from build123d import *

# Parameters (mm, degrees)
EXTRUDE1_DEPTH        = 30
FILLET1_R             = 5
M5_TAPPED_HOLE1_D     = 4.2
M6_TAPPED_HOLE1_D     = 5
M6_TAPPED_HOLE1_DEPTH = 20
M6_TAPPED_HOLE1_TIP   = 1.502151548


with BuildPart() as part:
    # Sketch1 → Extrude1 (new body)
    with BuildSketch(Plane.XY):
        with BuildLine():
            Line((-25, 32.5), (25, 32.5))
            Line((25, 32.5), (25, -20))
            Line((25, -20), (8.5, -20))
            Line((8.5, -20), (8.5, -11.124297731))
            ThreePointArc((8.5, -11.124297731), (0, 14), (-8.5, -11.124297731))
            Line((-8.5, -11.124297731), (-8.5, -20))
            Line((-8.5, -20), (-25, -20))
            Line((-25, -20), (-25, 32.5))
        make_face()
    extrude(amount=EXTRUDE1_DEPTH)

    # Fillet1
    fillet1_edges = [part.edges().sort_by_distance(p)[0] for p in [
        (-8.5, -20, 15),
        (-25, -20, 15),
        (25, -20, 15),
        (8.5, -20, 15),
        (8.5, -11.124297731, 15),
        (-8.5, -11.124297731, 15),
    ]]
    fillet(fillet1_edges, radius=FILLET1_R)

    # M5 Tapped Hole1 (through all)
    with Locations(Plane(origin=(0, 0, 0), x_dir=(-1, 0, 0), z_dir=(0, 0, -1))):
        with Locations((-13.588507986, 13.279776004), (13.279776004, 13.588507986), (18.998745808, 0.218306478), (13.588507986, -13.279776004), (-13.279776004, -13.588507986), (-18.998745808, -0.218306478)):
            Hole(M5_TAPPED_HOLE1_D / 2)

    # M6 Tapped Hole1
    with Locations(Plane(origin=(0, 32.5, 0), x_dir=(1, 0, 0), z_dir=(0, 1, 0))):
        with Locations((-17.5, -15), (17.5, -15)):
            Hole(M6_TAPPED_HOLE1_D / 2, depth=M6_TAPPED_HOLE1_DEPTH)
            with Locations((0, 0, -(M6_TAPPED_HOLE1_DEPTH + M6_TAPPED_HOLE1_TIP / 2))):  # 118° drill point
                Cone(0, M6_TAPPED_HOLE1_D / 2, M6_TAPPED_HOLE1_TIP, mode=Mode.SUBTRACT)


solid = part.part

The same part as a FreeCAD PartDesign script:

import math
import FreeCAD as App
import Part
import Sketcher
from FreeCAD import Vector
Q = App.Units.Quantity


def edges_at(feature, points):
    """Names of the edges that pass closest to the given points."""
    edges = feature.Shape.Edges
    near = lambda p: min(range(len(edges)), key=lambda i: edges[i].distToShape(Part.Vertex(*p))[0])
    return sorted({f"Edge{near(p) + 1}" for p in points})

doc = App.newDocument("Part")
body = doc.addObject("PartDesign::Body", "Body")

# Sketch on XY plane
sketch1 = body.newObject("Sketcher::SketchObject", "Sketch")
sketch1.AttachmentSupport = (doc.getObject("XY_Plane"), [""])
sketch1.MapMode = "FlatFace"
sketch1.addGeometry([
    Part.LineSegment(Vector(25, 32, 0), Vector(-25, 32, 0)),  # 0
    Part.LineSegment(Vector(-25, 32, 0), Vector(-25, -20, 0)),  # 1
    Part.LineSegment(Vector(-25, -20, 0), Vector(-8, -20, 0)),  # 2
    Part.LineSegment(Vector(-8, -20, 0), Vector(-8, -11, 0)),  # 3
    Part.ArcOfCircle(Part.Circle(Vector(0, 0, 0), Vector(0, 0, 1), 14), math.radians(-53), math.radians(233)),  # 4
    Part.LineSegment(Vector(8, -11, 0), Vector(8, -20, 0)),  # 5
    Part.LineSegment(Vector(8, -20, 0), Vector(25, -20, 0)),  # 6
    Part.LineSegment(Vector(25, -20, 0), Vector(25, 32, 0)),  # 7
], False)
sketch1.addConstraint([
    Sketcher.Constraint("Coincident", 0, 2, 1, 1),
    Sketcher.Constraint("Coincident", 1, 2, 2, 1),
    Sketcher.Constraint("Coincident", 2, 2, 3, 1),
    Sketcher.Constraint("Coincident", 3, 2, 4, 2),
    Sketcher.Constraint("Coincident", 4, 1, 5, 1),
    Sketcher.Constraint("Coincident", 5, 2, 6, 1),
    Sketcher.Constraint("Coincident", 6, 2, 7, 1),
    Sketcher.Constraint("Coincident", 7, 2, 0, 1),
    Sketcher.Constraint("Horizontal", 0),
    Sketcher.Constraint("Vertical", 1),
    Sketcher.Constraint("Horizontal", 2),
    Sketcher.Constraint("Vertical", 3),
    Sketcher.Constraint("Vertical", 5),
    Sketcher.Constraint("Horizontal", 6),
    Sketcher.Constraint("Vertical", 7),
    Sketcher.Constraint("Coincident", 4, 3, -1, 1),
    Sketcher.Constraint("Symmetric", 2, 2, 5, 2, -2),
    Sketcher.Constraint("Equal", 2, 6),
    Sketcher.Constraint("Radius", 4, Q("14 mm")),
    Sketcher.Constraint("DistanceX", 0, 2, 0, 1, Q("50 mm")),
    Sketcher.Constraint("DistanceX", 2, 1, 2, 2, Q("16.5 mm")),
    Sketcher.Constraint("DistanceY", 1, 2, 1, 1, Q("52.5 mm")),
    Sketcher.Constraint("DistanceY", 1, 2, -1, 1, Q("20 mm")),
])
pad1 = body.newObject("PartDesign::Pad", "Pad")
pad1.Profile = sketch1
pad1.Length = 30
doc.recompute()

fillet = body.newObject("PartDesign::Fillet", "Fillet")
fillet.Base = (pad1, edges_at(pad1, [
    (-8.5, -20, 15),
    (-25, -20, 15),
    (25, -20, 15),
    (8.5, -20, 15),
    (8.5, -11.124, 15),
    (-8.5, -11.124, 15),
]))
fillet.Radius = 5

# Sketch on XY plane
sketch2 = body.newObject("Sketcher::SketchObject", "Sketch001")
sketch2.AttachmentSupport = (doc.getObject("XY_Plane"), [""])
sketch2.MapMode = "FlatFace"
sketch2.addGeometry([
    Part.Circle(Vector(13.6, 13.3, 0), Vector(0, 0, 1), 2.1),  # 0
    Part.Circle(Vector(-13.3, 13.6, 0), Vector(0, 0, 1), 2.1),  # 1
    Part.Circle(Vector(-19, 0.2, 0), Vector(0, 0, 1), 2.1),  # 2
    Part.Circle(Vector(-13.6, -13.3, 0), Vector(0, 0, 1), 2.1),  # 3
    Part.Circle(Vector(13.3, -13.6, 0), Vector(0, 0, 1), 2.1),  # 4
    Part.Circle(Vector(19, -0.2, 0), Vector(0, 0, 1), 2.1),  # 5
], False)
sketch2.addConstraint([
    Sketcher.Constraint("Equal", 0, 1),
    Sketcher.Constraint("Equal", 1, 2),
    Sketcher.Constraint("Equal", 2, 3),
    Sketcher.Constraint("Equal", 3, 4),
    Sketcher.Constraint("Equal", 4, 5),
    Sketcher.Constraint("Symmetric", 0, 3, 3, 3, -1, 1),
    Sketcher.Constraint("Symmetric", 1, 3, 4, 3, -1, 1),
    Sketcher.Constraint("Symmetric", 2, 3, 5, 3, -1, 1),
    Sketcher.Constraint("Diameter", 0, Q("4.2 mm")),
    Sketcher.Constraint("DistanceY", 2, 3, 1, 3, Q("13.370202 mm")),
    Sketcher.Constraint("DistanceY", 0, 3, 1, 3, Q("0.308732 mm")),
    Sketcher.Constraint("DistanceX", 2, 3, 1, 3, Q("5.71897 mm")),
    Sketcher.Constraint("DistanceX", 3, 3, 1, 3, Q("0.308732 mm")),
    Sketcher.Constraint("DistanceX", 2, 3, 4, 3, Q("32.278522 mm")),
    Sketcher.Constraint("DistanceY", -1, 1, 0, 3, Q("13.279776 mm")),
])
doc.recompute()
hole = body.newObject("PartDesign::Hole", "Hole")
hole.Profile = sketch2
hole.ThreadType = "None"
hole.Diameter = 4.2
hole.DepthType = "ThroughAll"
hole.Reversed = True

# Sketch on XZ plane
sketch3 = body.newObject("Sketcher::SketchObject", "Sketch002")
sketch3.AttachmentSupport = (doc.getObject("XZ_Plane"), [""])
sketch3.MapMode = "FlatFace"
sketch3.AttachmentOffset = App.Placement(Vector(0, 0, -32.5), App.Rotation())
sketch3.addGeometry([
    Part.Circle(Vector(-17.5, 15, 0), Vector(0, 0, 1), 2.5),
    Part.Circle(Vector(17.5, 15, 0), Vector(0, 0, 1), 2.5),
], False)
sketch3.addConstraint([
    Sketcher.Constraint("Equal", 0, 1),
    Sketcher.Constraint("Symmetric", 0, 3, 1, 3, -2),
    Sketcher.Constraint("Diameter", 0, Q("5 mm")),
    Sketcher.Constraint("DistanceY", -1, 1, 0, 3, Q("15 mm")),
    Sketcher.Constraint("DistanceX", 0, 3, 1, 3, Q("35 mm")),
])
doc.recompute()
hole2 = body.newObject("PartDesign::Hole", "Hole001")
hole2.Profile = sketch3
hole2.ThreadType = "None"
hole2.Diameter = 5
hole2.DepthType = "Dimension"
hole2.Depth = 20
hole2.DrillPoint = "Angled"
hole2.DrillPointAngle = 118
hole2.Reversed = True

doc.recompute()
